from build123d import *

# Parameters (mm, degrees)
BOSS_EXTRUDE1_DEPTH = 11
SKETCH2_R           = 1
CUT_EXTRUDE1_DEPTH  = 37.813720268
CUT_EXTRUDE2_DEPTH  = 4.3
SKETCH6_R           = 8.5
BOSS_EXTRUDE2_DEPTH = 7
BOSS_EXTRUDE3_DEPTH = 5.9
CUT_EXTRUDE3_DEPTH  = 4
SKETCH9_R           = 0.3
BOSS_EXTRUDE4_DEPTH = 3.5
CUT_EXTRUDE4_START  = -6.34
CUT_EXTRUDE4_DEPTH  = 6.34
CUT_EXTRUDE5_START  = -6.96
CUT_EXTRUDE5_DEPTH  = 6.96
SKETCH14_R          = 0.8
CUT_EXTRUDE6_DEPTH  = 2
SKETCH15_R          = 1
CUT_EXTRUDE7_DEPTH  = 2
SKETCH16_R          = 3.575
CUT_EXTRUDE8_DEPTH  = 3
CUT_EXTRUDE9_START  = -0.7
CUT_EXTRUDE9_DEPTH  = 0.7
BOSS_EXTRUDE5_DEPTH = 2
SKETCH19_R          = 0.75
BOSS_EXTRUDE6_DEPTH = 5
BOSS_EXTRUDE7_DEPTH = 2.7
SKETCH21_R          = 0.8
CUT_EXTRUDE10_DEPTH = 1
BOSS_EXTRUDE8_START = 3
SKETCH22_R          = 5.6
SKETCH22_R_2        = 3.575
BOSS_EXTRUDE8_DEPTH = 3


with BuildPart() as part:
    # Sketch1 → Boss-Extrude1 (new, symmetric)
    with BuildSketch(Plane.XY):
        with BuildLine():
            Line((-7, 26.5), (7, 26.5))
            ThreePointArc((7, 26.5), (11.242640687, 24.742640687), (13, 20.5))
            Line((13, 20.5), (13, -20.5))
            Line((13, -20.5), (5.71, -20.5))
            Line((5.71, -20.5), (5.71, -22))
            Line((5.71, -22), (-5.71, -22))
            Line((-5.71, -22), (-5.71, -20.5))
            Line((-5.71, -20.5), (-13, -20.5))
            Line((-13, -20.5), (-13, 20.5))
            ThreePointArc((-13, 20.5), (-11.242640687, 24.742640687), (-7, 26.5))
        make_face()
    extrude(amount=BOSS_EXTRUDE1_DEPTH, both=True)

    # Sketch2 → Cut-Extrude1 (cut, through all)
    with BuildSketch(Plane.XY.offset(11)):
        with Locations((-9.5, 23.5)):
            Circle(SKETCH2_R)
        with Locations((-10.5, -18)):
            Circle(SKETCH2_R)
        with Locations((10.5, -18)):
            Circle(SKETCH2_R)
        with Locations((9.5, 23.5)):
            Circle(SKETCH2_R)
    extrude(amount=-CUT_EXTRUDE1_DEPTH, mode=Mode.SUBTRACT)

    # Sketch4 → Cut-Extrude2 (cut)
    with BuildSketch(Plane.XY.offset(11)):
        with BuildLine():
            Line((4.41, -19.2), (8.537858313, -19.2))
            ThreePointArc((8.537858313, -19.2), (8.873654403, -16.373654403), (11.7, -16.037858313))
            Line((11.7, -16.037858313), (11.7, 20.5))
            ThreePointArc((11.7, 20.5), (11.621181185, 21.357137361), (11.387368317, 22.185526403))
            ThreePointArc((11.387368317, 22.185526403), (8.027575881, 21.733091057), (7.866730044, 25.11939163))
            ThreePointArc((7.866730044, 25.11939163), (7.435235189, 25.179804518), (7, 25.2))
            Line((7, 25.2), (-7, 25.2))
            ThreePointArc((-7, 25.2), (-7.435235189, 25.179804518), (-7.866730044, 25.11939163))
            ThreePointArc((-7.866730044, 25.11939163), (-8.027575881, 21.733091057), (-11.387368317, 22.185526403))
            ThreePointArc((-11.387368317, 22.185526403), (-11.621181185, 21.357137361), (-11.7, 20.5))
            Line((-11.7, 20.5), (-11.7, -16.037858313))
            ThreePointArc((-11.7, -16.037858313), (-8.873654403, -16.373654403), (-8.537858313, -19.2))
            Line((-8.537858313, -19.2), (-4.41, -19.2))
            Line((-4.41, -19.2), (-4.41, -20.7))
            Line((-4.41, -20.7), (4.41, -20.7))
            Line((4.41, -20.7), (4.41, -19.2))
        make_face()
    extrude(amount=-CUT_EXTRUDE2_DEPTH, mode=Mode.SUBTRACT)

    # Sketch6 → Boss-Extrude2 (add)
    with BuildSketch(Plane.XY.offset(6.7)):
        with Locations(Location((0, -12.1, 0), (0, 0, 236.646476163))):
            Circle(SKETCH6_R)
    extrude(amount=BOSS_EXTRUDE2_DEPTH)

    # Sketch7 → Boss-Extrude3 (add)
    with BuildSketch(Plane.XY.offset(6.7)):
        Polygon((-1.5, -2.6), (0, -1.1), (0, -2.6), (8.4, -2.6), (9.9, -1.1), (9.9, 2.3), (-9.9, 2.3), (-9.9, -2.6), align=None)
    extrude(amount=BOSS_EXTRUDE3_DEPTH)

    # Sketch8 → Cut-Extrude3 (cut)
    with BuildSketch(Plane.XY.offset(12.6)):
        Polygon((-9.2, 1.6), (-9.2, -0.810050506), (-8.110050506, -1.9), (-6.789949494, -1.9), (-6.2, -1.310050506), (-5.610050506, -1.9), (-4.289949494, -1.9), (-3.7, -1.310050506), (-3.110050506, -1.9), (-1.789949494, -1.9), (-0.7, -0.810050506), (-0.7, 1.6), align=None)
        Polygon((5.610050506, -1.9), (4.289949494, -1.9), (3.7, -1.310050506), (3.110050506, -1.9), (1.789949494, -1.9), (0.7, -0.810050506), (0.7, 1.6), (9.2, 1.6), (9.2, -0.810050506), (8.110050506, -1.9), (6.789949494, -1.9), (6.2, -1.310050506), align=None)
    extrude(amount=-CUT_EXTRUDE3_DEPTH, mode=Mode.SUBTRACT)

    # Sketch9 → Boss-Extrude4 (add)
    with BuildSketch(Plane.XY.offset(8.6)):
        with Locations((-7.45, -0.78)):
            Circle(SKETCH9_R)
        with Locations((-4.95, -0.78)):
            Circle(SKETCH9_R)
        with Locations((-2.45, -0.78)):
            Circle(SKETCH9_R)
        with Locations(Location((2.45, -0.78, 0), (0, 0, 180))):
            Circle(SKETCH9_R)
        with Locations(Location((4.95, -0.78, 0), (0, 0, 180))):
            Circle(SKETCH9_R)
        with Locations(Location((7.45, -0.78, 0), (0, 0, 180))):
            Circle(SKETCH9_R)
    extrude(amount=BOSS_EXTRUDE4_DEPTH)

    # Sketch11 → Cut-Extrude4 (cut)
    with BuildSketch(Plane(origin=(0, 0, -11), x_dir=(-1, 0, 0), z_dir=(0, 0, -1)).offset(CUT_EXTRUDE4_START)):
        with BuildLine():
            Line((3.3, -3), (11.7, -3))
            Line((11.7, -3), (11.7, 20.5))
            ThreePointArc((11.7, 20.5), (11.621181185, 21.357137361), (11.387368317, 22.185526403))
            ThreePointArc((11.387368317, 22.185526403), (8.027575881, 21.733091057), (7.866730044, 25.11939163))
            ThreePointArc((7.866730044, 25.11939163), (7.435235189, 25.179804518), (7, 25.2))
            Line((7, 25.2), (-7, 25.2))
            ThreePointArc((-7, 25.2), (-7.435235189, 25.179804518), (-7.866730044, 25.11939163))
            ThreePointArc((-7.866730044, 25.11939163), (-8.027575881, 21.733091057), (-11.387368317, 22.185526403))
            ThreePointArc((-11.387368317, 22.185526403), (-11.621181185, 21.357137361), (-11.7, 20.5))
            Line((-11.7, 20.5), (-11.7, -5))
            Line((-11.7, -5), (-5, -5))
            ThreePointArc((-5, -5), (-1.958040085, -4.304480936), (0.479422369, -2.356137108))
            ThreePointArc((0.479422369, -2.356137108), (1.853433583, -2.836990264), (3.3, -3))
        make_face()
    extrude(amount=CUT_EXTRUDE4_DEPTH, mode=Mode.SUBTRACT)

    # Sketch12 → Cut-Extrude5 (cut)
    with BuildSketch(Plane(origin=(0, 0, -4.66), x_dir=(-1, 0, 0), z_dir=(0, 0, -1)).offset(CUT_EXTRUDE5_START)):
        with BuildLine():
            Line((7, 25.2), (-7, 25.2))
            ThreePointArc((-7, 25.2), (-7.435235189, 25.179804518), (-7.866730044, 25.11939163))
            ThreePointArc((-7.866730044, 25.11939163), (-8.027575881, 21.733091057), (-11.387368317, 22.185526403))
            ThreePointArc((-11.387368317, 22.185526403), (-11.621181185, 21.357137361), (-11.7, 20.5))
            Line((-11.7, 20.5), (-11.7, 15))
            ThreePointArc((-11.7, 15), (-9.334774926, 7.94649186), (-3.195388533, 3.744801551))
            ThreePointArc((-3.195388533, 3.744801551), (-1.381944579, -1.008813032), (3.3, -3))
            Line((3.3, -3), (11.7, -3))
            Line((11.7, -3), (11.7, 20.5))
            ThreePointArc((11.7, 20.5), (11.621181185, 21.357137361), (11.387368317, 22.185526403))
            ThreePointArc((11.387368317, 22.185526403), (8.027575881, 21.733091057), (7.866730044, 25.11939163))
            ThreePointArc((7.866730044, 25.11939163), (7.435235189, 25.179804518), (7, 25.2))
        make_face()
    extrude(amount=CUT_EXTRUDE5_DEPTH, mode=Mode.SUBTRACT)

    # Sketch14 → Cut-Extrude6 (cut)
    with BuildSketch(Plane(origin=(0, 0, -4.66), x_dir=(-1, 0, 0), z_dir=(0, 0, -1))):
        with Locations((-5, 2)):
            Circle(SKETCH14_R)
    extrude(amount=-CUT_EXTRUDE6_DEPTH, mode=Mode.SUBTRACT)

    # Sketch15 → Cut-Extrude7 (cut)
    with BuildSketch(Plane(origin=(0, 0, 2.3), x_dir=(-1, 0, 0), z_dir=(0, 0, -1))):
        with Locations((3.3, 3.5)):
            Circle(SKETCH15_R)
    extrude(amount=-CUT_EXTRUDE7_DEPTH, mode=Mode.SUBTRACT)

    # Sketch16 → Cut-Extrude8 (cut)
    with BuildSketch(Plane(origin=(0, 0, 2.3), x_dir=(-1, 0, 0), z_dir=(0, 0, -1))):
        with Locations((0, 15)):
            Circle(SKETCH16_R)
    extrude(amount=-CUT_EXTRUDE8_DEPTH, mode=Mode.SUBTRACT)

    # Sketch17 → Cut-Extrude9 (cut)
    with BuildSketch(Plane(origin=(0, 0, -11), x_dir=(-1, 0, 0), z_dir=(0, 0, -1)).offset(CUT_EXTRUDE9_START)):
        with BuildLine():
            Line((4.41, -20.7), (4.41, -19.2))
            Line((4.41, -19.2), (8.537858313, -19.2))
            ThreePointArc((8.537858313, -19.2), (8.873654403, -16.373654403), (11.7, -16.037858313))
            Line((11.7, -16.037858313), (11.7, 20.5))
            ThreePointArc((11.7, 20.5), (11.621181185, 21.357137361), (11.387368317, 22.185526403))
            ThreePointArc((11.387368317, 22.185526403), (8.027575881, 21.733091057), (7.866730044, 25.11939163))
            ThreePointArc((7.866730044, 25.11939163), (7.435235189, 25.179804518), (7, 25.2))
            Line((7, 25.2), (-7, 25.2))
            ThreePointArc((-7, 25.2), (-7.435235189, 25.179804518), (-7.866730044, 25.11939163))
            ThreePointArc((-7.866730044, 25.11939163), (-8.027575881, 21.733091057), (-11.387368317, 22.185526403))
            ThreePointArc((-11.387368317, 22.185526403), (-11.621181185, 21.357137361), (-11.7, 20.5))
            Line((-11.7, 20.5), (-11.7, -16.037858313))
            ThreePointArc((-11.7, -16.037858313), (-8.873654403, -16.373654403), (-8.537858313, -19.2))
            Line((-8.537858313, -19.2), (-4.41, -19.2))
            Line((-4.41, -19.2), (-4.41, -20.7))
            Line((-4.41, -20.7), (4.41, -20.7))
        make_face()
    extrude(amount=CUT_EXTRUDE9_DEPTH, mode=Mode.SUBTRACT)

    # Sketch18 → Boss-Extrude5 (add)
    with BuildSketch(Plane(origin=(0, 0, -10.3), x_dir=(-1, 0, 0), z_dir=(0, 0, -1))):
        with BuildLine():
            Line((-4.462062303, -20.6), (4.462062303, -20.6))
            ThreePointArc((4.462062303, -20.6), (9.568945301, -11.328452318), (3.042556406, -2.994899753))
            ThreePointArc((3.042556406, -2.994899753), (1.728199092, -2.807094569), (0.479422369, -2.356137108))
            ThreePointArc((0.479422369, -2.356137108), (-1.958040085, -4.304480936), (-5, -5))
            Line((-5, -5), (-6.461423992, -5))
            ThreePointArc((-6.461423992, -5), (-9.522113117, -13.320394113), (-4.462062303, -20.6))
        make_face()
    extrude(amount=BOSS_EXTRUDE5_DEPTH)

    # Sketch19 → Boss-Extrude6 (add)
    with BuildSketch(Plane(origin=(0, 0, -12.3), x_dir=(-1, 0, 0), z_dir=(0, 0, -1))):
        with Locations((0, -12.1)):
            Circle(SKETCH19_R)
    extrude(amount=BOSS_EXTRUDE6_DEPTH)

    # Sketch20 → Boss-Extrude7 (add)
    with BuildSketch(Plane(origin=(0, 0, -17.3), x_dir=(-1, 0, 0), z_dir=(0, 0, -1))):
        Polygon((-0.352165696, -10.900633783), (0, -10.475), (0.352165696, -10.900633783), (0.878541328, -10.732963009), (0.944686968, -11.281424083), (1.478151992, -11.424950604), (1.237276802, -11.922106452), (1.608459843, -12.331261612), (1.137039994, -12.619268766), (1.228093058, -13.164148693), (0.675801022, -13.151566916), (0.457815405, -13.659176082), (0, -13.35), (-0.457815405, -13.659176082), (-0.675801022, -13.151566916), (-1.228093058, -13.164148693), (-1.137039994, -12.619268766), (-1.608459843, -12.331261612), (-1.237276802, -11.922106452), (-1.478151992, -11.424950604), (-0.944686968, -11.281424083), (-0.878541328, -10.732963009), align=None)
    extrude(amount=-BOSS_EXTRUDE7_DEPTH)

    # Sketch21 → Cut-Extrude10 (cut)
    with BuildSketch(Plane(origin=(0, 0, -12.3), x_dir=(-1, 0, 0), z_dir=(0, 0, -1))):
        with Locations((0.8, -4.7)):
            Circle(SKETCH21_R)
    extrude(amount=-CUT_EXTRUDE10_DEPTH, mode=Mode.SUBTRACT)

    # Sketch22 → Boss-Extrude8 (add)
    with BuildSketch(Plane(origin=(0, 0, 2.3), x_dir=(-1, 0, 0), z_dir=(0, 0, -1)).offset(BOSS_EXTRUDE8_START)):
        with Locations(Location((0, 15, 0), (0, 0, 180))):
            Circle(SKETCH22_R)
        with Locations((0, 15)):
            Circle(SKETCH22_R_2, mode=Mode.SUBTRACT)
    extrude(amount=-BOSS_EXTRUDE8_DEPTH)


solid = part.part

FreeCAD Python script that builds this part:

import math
import FreeCAD as App
import Part
import Sketcher
Q = App.Units.Quantity


def add_polygon(sketch, points):
    """Adds a closed chain of lines whose ends are joined by coincident constraints."""
    first, n = sketch.GeometryCount, len(points)
    for a, b in zip(points, points[1:] + points[:1]):
        sketch.addGeometry(Part.LineSegment(App.Vector(*a, 0), App.Vector(*b, 0)), False)
    for i in range(n):
        sketch.addConstraint(Sketcher.Constraint("Coincident", first + i, 2, first + (i + 1) % n, 1))

doc = App.newDocument("Part")
params = doc.addObject("Spreadsheet::Sheet", "Params")
for row, (alias, value) in enumerate([
    ("sketch1_radius", "6 mm"),
    ("sketch1_width", "14 mm"),
    ("sketch1_height", "41 mm"),
    ("sketch1_height2", "1.5 mm"),
    ("sketch1_width2", "7.29 mm"),
    ("pad1_length", "22 mm"),
    ("sketch2_diameter", "2 mm"),
    ("sketch3_radius", "2.3 mm"),
    ("sketch3_radius2", "4.7 mm"),
    ("sketch3_width", "14 mm"),
    ("sketch3_height", "1.5 mm"),
    ("sketch3_width2", "8.82 mm"),
    ("pocket2_length", "4.3 mm"),
    ("sketch4_diameter", "17 mm"),
    ("pad2_length", "7 mm"),
    ("sketch5_width", "8.4 mm"),
    ("sketch5_width2", "19.8 mm"),
    ("sketch5_height", "3.4 mm"),
    ("pad3_length", "5.9 mm"),
    ("sketch6_width", "8.5 mm"),
    ("pocket3_length", "4 mm"),
    ("sketch7_diameter", "0.6 mm"),
    ("pad4_length", "3.5 mm"),
    ("sketch8_radius", "7 mm"),
    ("sketch8_radius2", "4.7 mm"),
    ("sketch8_radius3", "2.3 mm"),
    ("sketch8_radius4", "6.5 mm"),
    ("sketch8_width", "14 mm"),
    ("pocket4_length", "6.34 mm"),
    ("sketch9_radius", "4.7 mm"),
    ("sketch9_radius2", "2.3 mm"),
    ("sketch9_radius3", "11.7 mm"),
    ("sketch9_radius4", "6.5 mm"),
    ("sketch9_width", "8.4 mm"),
    ("pocket5_length", "6.96 mm"),
    ("sketch10_diameter", "1.6 mm"),
    ("pocket6_length", "2 mm"),
    ("sketch11_diameter", "2 mm"),
    ("pocket7_length", "2 mm"),
    ("sketch12_diameter", "7.15 mm"),
    ("pocket8_length", "3 mm"),
    ("sketch13_radius", "2.3 mm"),
    ("sketch13_radius2", "4.7 mm"),
    ("sketch13_width", "14 mm"),
    ("sketch13_height", "1.5 mm"),
    ("sketch13_width2", "8.82 mm"),
    ("pocket9_length", "0.7 mm"),
    ("sketch14_radius", "7 mm"),
    ("sketch14_radius2", "9.6 mm"),
    ("sketch14_radius3", "6.5 mm"),
    ("pad5_length", "2 mm"),
    ("sketch15_diameter", "1.5 mm"),
    ("pad6_length", "5 mm"),
    ("pad7_length", "2.7 mm"),
    ("sketch17_diameter", "1.6 mm"),
    ("pocket10_length", "1 mm"),
    ("sketch18_diameter", "11.2 mm"),
    ("sketch18_diameter2", "7.15 mm"),
    ("pad8_length", "3 mm"),
], start=1):
    params.set(f"A{row}", alias)
    params.set(f"B{row}", "=" + value)
    params.setAlias(f"B{row}", alias)

body = doc.addObject("PartDesign::Body", "Body")

# Sketch on XY plane
sketch1 = body.newObject("Sketcher::SketchObject", "Sketch")
sketch1.AttachmentSupport = (doc.getObject("XY_Plane"), [""])
sketch1.MapMode = "FlatFace"
sketch1.addGeometry([
    Part.LineSegment(App.Vector(7, 26.5, 0), App.Vector(-7, 26.5, 0)),  # 0
    Part.ArcOfCircle(Part.Circle(App.Vector(-7, 20.5, 0), App.Vector(0, 0, 1), 6), math.radians(90), math.radians(180)),  # 1
    Part.LineSegment(App.Vector(-13, 20.5, 0), App.Vector(-13, -20.5, 0)),  # 2
    Part.LineSegment(App.Vector(-13, -20.5, 0), App.Vector(-5.7, -20.5, 0)),  # 3
    Part.LineSegment(App.Vector(-5.7, -20.5, 0), App.Vector(-5.7, -22, 0)),  # 4
    Part.LineSegment(App.Vector(-5.7, -22, 0), App.Vector(5.7, -22, 0)),  # 5
    Part.LineSegment(App.Vector(5.7, -22, 0), App.Vector(5.7, -20.5, 0)),  # 6
    Part.LineSegment(App.Vector(5.7, -20.5, 0), App.Vector(13, -20.5, 0)),  # 7
    Part.LineSegment(App.Vector(13, -20.5, 0), App.Vector(13, 20.5, 0)),  # 8
    Part.ArcOfCircle(Part.Circle(App.Vector(7, 20.5, 0), App.Vector(0, 0, 1), 6), math.radians(0), math.radians(90)),  # 9
], False)
sketch1.addConstraint([
    Sketcher.Constraint("Tangent", 0, 2, 1, 1),
    Sketcher.Constraint("Tangent", 1, 2, 2, 1),
    Sketcher.Constraint("Coincident", 2, 2, 3, 1),
    Sketcher.Constraint("Coincident", 3, 2, 4, 1),
    Sketcher.Constraint("Coincident", 4, 2, 5, 1),
    Sketcher.Constraint("Coincident", 5, 2, 6, 1),
    Sketcher.Constraint("Coincident", 6, 2, 7, 1),
    Sketcher.Constraint("Coincident", 7, 2, 8, 1),
    Sketcher.Constraint("Tangent", 8, 2, 9, 1),
    Sketcher.Constraint("Tangent", 9, 2, 0, 1),
    Sketcher.Constraint("Horizontal", 0),
    Sketcher.Constraint("Vertical", 2),
    Sketcher.Constraint("Horizontal", 3),
    Sketcher.Constraint("Vertical", 4),
    Sketcher.Constraint("Horizontal", 5),
    Sketcher.Constraint("Vertical", 6),
    Sketcher.Constraint("Horizontal", 7),
    Sketcher.Constraint("Vertical", 8),
    Sketcher.Constraint("Equal", 1, 9),
    Sketcher.Constraint("Symmetric", 1, 2, 7, 2, -1, 1),
    Sketcher.Constraint("Symmetric", 3, 2, 6, 2, -2),
    Sketcher.Constraint("Radius", 1, 6.0),
    Sketcher.Constraint("DistanceX", 0, 2, 0, 1, 14.0),
    Sketcher.Constraint("DistanceY", 2, 2, 2, 1, 41.0),
    Sketcher.Constraint("DistanceY", 4, 2, 4, 1, 1.5),
    Sketcher.Constraint("DistanceX", 3, 1, 3, 2, 7.29),
])
sketch1.setExpression("Constraints[21]", "Params.sketch1_radius")
sketch1.setExpression("Constraints[22]", "Params.sketch1_width")
sketch1.setExpression("Constraints[23]", "Params.sketch1_height")
sketch1.setExpression("Constraints[24]", "Params.sketch1_height2")
sketch1.setExpression("Constraints[25]", "Params.sketch1_width2")
pad1 = body.newObject("PartDesign::Pad", "Pad")
pad1.Profile = sketch1
pad1.setExpression("Length", "Params.pad1_length")
pad1.Midplane = True

# Sketch on XY plane
sketch2 = body.newObject("Sketcher::SketchObject", "Sketch001")
sketch2.AttachmentSupport = (doc.getObject("XY_Plane"), [""])
sketch2.MapMode = "FlatFace"
sketch2.AttachmentOffset = App.Placement(App.Vector(0, 0, 11), App.Rotation())
sketch2.addGeometry([
    Part.Circle(App.Vector(-9.5, 23.5, 0), App.Vector(0, 0, 1), 1),
    Part.Circle(App.Vector(-10.5, -18, 0), App.Vector(0, 0, 1), 1),
    Part.Circle(App.Vector(10.5, -18, 0), App.Vector(0, 0, 1), 1),
    Part.Circle(App.Vector(9.5, 23.5, 0), App.Vector(0, 0, 1), 1),
], False)
sketch2.addConstraint([
    Sketcher.Constraint("Equal", 0, 1),
    Sketcher.Constraint("Equal", 1, 2),
    Sketcher.Constraint("Equal", 2, 3),
    Sketcher.Constraint("Symmetric", 1, 3, 2, 3, -2),
    Sketcher.Constraint("Symmetric", 0, 3, 3, 3, -2),
    Sketcher.Constraint("Diameter", 0, 2.0),
    Sketcher.Constraint("DistanceY", 1, 3, -1, 1, 18.0),
    Sketcher.Constraint("DistanceX", 1, 3, 0, 3, 1.0),
    Sketcher.Constraint("DistanceX", 1, 3, 2, 3, 21.0),
    Sketcher.Constraint("DistanceY", -1, 1, 0, 3, 23.5),
])
sketch2.setExpression("Constraints[5]", "Params.sketch2_diameter")
pocket1 = body.newObject("PartDesign::Pocket", "Pocket")
pocket1.Profile = sketch2
pocket1.Type = "ThroughAll"

# Sketch on XY plane
sketch3 = body.newObject("Sketcher::SketchObject", "Sketch002")
sketch3.AttachmentSupport = (doc.getObject("XY_Plane"), [""])
sketch3.MapMode = "FlatFace"
sketch3.AttachmentOffset = App.Placement(App.Vector(0, 0, 11), App.Rotation())
sketch3.addGeometry([
    Part.LineSegment(App.Vector(4.4, -19.2, 0), App.Vector(8.5, -19.2, 0)),  # 0
    Part.ArcOfCircle(Part.Circle(App.Vector(10.5, -18, 0), App.Vector(0, 0, 1), 2.3), math.radians(59), math.radians(211)),  # 1
    Part.LineSegment(App.Vector(11.7, -16, 0), App.Vector(11.7, 20.5, 0)),  # 2
    Part.ArcOfCircle(Part.Circle(App.Vector(7, 20.5, 0), App.Vector(0, 0, 1), 4.7), math.radians(0), math.radians(21)),  # 3
    Part.ArcOfCircle(Part.Circle(App.Vector(9.5, 23.5, 0), App.Vector(0, 0, 1), 2.3), math.radians(135), math.radians(325)),  # 4
    Part.ArcOfCircle(Part.Circle(App.Vector(7, 20.5, 0), App.Vector(0, 0, 1), 4.7), math.radians(79.37), math.radians(90)),  # 5
    Part.LineSegment(App.Vector(7, 25.2, 0), App.Vector(-7, 25.2, 0)),  # 6
    Part.ArcOfCircle(Part.Circle(App.Vector(-7, 20.5, 0), App.Vector(0, 0, 1), 4.7), math.radians(90), math.radians(100.63)),  # 7
    Part.ArcOfCircle(Part.Circle(App.Vector(-9.5, 23.5, 0), App.Vector(0, 0, 1), 2.3), math.radians(-145), math.radians(45)),  # 8
    Part.ArcOfCircle(Part.Circle(App.Vector(-7, 20.5, 0), App.Vector(0, 0, 1), 4.7), math.radians(159), math.radians(180)),  # 9
    Part.LineSegment(App.Vector(-11.7, 20.5, 0), App.Vector(-11.7, -16, 0)),  # 10
    Part.ArcOfCircle(Part.Circle(App.Vector(-10.5, -18, 0), App.Vector(0, 0, 1), 2.3), math.radians(-31), math.radians(121)),  # 11
    Part.LineSegment(App.Vector(-8.5, -19.2, 0), App.Vector(-4.4, -19.2, 0)),  # 12
    Part.LineSegment(App.Vector(-4.4, -19.2, 0), App.Vector(-4.4, -20.7, 0)),  # 13
    Part.LineSegment(App.Vector(-4.4, -20.7, 0), App.Vector(4.4, -20.7, 0)),  # 14
    Part.LineSegment(App.Vector(4.4, -20.7, 0), App.Vector(4.4, -19.2, 0)),  # 15
], False)
sketch3.addConstraint([
    Sketcher.Constraint("Coincident", 0, 2, 1, 2),
    Sketcher.Constraint("Coincident", 1, 1, 2, 1),
    Sketcher.Constraint("Tangent", 2, 2, 3, 1),
    Sketcher.Constraint("Coincident", 3, 2, 4, 2),
    Sketcher.Constraint("Coincident", 4, 1, 5, 1),
    Sketcher.Constraint("Tangent", 5, 2, 6, 1),
    Sketcher.Constraint("Tangent", 6, 2, 7, 1),
    Sketcher.Constraint("Coincident", 7, 2, 8, 2),
    Sketcher.Constraint("Coincident", 8, 1, 9, 1),
    Sketcher.Constraint("Tangent", 9, 2, 10, 1),
    Sketcher.Constraint("Coincident", 10, 2, 11, 2),
    Sketcher.Constraint("Coincident", 11, 1, 12, 1),
    Sketcher.Constraint("Coincident", 12, 2, 13, 1),
    Sketcher.Constraint("Coincident", 13, 2, 14, 1),
    Sketcher.Constraint("Coincident", 14, 2, 15, 1),
    Sketcher.Constraint("Coincident", 15, 2, 0, 1),
    Sketcher.Constraint("Horizontal", 0),
    Sketcher.Constraint("Vertical", 2),
    Sketcher.Constraint("Horizontal", 6),
    Sketcher.Constraint("Vertical", 10),
    Sketcher.Constraint("Horizontal", 12),
    Sketcher.Constraint("Vertical", 13),
    Sketcher.Constraint("Horizontal", 14),
    Sketcher.Constraint("Vertical", 15),
    Sketcher.Constraint("Coincident", 5, 3, 3, 3),
    Sketcher.Constraint("Coincident", 9, 3, 7, 3),
    Sketcher.Constraint("Equal", 1, 4),
    Sketcher.Constraint("Equal", 3, 5),
    Sketcher.Constraint("Equal", 5, 7),
    Sketcher.Constraint("Equal", 4, 8),
    Sketcher.Constraint("Equal", 7, 9),
    Sketcher.Constraint("Equal", 8, 11),
    Sketcher.Constraint("Symmetric", 4, 3, 8, 3, -2),
    Sketcher.Constraint("Symmetric", 1, 3, 11, 3, -2),
    Sketcher.Constraint("Symmetric", 12, 2, 15, 2, -2),
    Sketcher.Constraint("Horizontal", 4, 1, 7, 2),
    Sketcher.Constraint("Radius", 1, 2.3),
    Sketcher.Constraint("Radius", 3, 4.7),
    Sketcher.Constraint("DistanceX", 6, 2, 6, 1, 14.0),
    Sketcher.Constraint("DistanceY", 13, 2, 13, 1, 1.5),
    Sketcher.Constraint("DistanceY", 1, 3, -1, 1, 18.0),
    Sketcher.Constraint("DistanceY", 3, 3, 4, 3, 3.0),
    Sketcher.Constraint("DistanceX", 4, 3, 1, 3, 1.0),
    Sketcher.Constraint("DistanceX", 8, 3, 4, 3, 19.0),
    Sketcher.Constraint("DistanceX", 14, 1, 14, 2, 8.82),
    Sketcher.Constraint("DistanceY", -1, 1, 3, 3, 20.5),
    Sketcher.Constraint("DistanceY", 0, 2, -1, 1, 19.2),
])
sketch3.setExpression("Constraints[36]", "Params.sketch3_radius")
sketch3.setExpression("Constraints[37]", "Params.sketch3_radius2")
sketch3.setExpression("Constraints[38]", "Params.sketch3_width")
sketch3.setExpression("Constraints[39]", "Params.sketch3_height")
sketch3.setExpression("Constraints[44]", "Params.sketch3_width2")
pocket2 = body.newObject("PartDesign::Pocket", "Pocket001")
pocket2.Profile = sketch3
pocket2.setExpression("Length", "Params.pocket2_length")

# Sketch on XY plane
sketch4 = body.newObject("Sketcher::SketchObject", "Sketch003")
sketch4.AttachmentSupport = (doc.getObject("XY_Plane"), [""])
sketch4.MapMode = "FlatFace"
sketch4.AttachmentOffset = App.Placement(App.Vector(0, 0, 6.7), App.Rotation())
sketch4.addGeometry(Part.Circle(App.Vector(0, -12, 0), App.Vector(0, 0, 1), 8), False)
sketch4.addConstraint([
    Sketcher.Constraint("PointOnObject", 0, 3, -2),
    Sketcher.Constraint("Diameter", 0, 17.0),
    Sketcher.Constraint("DistanceY", 0, 3, -1, 1, 12.1),
])
sketch4.setExpression("Constraints[1]", "Params.sketch4_diameter")
pad2 = body.newObject("PartDesign::Pad", "Pad001")
pad2.Profile = sketch4
pad2.setExpression("Length", "Params.pad2_length")

# Sketch on XY plane
sketch5 = body.newObject("Sketcher::SketchObject", "Sketch004")
sketch5.AttachmentSupport = (doc.getObject("XY_Plane"), [""])
sketch5.MapMode = "FlatFace"
sketch5.AttachmentOffset = App.Placement(App.Vector(0, 0, 6.7), App.Rotation())
add_polygon(sketch5, [(-1.5, -2.6), (0, -1.1), (0, -2.6), (8.4, -2.6), (9.9, -1.1), (9.9, 2.3), (-9.9, 2.3), (-9.9, -2.6)])  # lines 0-7
sketch5.addConstraint([
    Sketcher.Constraint("Vertical", 1),
    Sketcher.Constraint("Horizontal", 2),
    Sketcher.Constraint("Vertical", 4),
    Sketcher.Constraint("Horizontal", 5),
    Sketcher.Constraint("Vertical", 6),
    Sketcher.Constraint("Horizontal", 7),
    Sketcher.Constraint("PointOnObject", 0, 2, -2),
    Sketcher.Constraint("Parallel", 0, 3),
    Sketcher.Constraint("Horizontal", 0, 2, 3, 2),
    Sketcher.Constraint("Horizontal", 2, 2, 6, 2),
    Sketcher.Constraint("Equal", 2, 7),
    Sketcher.Constraint("Angle", 0, Q("45 deg")),
    Sketcher.Constraint("DistanceX", 2, 1, 2, 2, 8.4),
    Sketcher.Constraint("DistanceX", 5, 2, 5, 1, 19.8),
    Sketcher.Constraint("DistanceY", 4, 1, 4, 2, 3.4),
    Sketcher.Constraint("DistanceY", 0, 2, -1, 1, 1.1),
])
sketch5.setExpression("Constraints[20]", "Params.sketch5_width")
sketch5.setExpression("Constraints[21]", "Params.sketch5_width2")
sketch5.setExpression("Constraints[22]", "Params.sketch5_height")
pad3 = body.newObject("PartDesign::Pad", "Pad002")
pad3.Profile = sketch5
pad3.setExpression("Length", "Params.pad3_length")

# Sketch on XY plane
sketch6 = body.newObject("Sketcher::SketchObject", "Sketch005")
sketch6.AttachmentSupport = (doc.getObject("XY_Plane"), [""])
sketch6.MapMode = "FlatFace"
sketch6.AttachmentOffset = App.Placement(App.Vector(0, 0, 12.6), App.Rotation())
add_polygon(sketch6, [(-9.2, 1.6), (-9.2, -0.8), (-8.1, -1.9), (-6.8, -1.9), (-6.2, -1.3), (-5.6, -1.9), (-4.3, -1.9), (-3.7, -1.3), (-3.1, -1.9), (-1.8, -1.9), (-0.7, -0.8), (-0.7, 1.6)])  # lines 0-11
add_polygon(sketch6, [(4.3, -1.9), (5.6, -1.9), (6.2, -1.3), (6.8, -1.9), (8.1, -1.9), (9.2, -0.8), (9.2, 1.6), (0.7, 1.6), (0.7, -0.8), (1.8, -1.9), (3.1, -1.9), (3.7, -1.3)])  # lines 12-23
sketch6.addConstraint([
    Sketcher.Constraint("Vertical", 0),
    Sketcher.Constraint("Horizontal", 2),
    Sketcher.Constraint("Horizontal", 5),
    Sketcher.Constraint("Horizontal", 8),
    Sketcher.Constraint("Vertical", 10),
    Sketcher.Constraint("Horizontal", 11),
    Sketcher.Constraint("Horizontal", 12),
    Sketcher.Constraint("Horizontal", 15),
    Sketcher.Constraint("Vertical", 17),
    Sketcher.Constraint("Horizontal", 18),
    Sketcher.Constraint("Vertical", 19),
    Sketcher.Constraint("Horizontal", 21),
    Sketcher.Constraint("Symmetric", 4, 2, 12, 2, -2),
    Sketcher.Constraint("Symmetric", 3, 2, 13, 2, -2),
    Sketcher.Constraint("Symmetric", 2, 2, 14, 2, -2),
    Sketcher.Constraint("Symmetric", 0, 2, 16, 2, -2),
    Sketcher.Constraint("Symmetric", 10, 2, 18, 2, -2),
    Sketcher.Constraint("Symmetric", 8, 2, 20, 2, -2),
    Sketcher.Constraint("Symmetric", 6, 2, 22, 2, -2),
    Sketcher.Constraint("Perpendicular", 1, 3),
    Sketcher.Constraint("Perpendicular", 3, 4),
    Sketcher.Constraint("Perpendicular", 4, 6),
    Sketcher.Constraint("Perpendicular", 6, 7),
    Sketcher.Constraint("Perpendicular", 7, 9),
    Sketcher.Constraint("Parallel", 9, 13),
    Sketcher.Constraint("Perpendicular", 14, 16),
    Sketcher.Constraint("Perpendicular", 16, 20),
    Sketcher.Constraint("Perpendicular", 20, 22),
    Sketcher.Constraint("Perpendicular", 22, 23),
    Sketcher.Constraint("Horizontal", 2, 2, 4, 2),
    Sketcher.Constraint("Horizontal", 3, 2, 6, 2),
    Sketcher.Constraint("Horizontal", 5, 2, 7, 2),
    Sketcher.Constraint("Horizontal", 0, 2, 9, 2),
    Sketcher.Constraint("Equal", 2, 5),
    Sketcher.Constraint("Equal", 5, 8),
    Sketcher.Constraint("DistanceX", 11, 2, 11, 1, 8.5),
    Sketcher.Constraint("DistanceX", 0, 2, 3, 2, 3.0),
    Sketcher.Constraint("DistanceX", 0, 2, -1, 1, 9.2),
    Sketcher.Constraint("DistanceY", 1, 2, -1, 1, 1.9),
    Sketcher.Constraint("DistanceY", -1, 1, 10, 2, 1.6),
    Sketcher.Constraint("DistanceX", 2, 1, 2, 2, 1.320101),
])
sketch6.setExpression("Constraints[59]", "Params.sketch6_width")
pocket3 = body.newObject("PartDesign::Pocket", "Pocket002")
pocket3.Profile = sketch6
pocket3.setExpression("Length", "Params.pocket3_length")

# Sketch on XY plane
sketch7 = body.newObject("Sketcher::SketchObject", "Sketch006")
sketch7.AttachmentSupport = (doc.getObject("XY_Plane"), [""])
sketch7.MapMode = "FlatFace"
sketch7.AttachmentOffset = App.Placement(App.Vector(0, 0, 8.6), App.Rotation())
sketch7.addGeometry([
    Part.Circle(App.Vector(-7.45, -0.78, 0), App.Vector(0, 0, 1), 0.3),  # 0
    Part.Circle(App.Vector(-4.95, -0.78, 0), App.Vector(0, 0, 1), 0.3),  # 1
    Part.Circle(App.Vector(-2.45, -0.78, 0), App.Vector(0, 0, 1), 0.3),  # 2
    Part.Circle(App.Vector(2.45, -0.78, 0), App.Vector(0, 0, 1), 0.3),  # 3
    Part.Circle(App.Vector(4.95, -0.78, 0), App.Vector(0, 0, 1), 0.3),  # 4
    Part.Circle(App.Vector(7.45, -0.78, 0), App.Vector(0, 0, 1), 0.3),  # 5
], False)
sketch7.addConstraint([
    Sketcher.Constraint("Equal", 0, 1),
    Sketcher.Constraint("Equal", 1, 2),
    Sketcher.Constraint("Equal", 2, 3),
    Sketcher.Constraint("Equal", 3, 4),
    Sketcher.Constraint("Equal", 4, 5),
    Sketcher.Constraint("Symmetric", 2, 3, 3, 3, -2),
    Sketcher.Constraint("Symmetric", 1, 3, 4, 3, -2),
    Sketcher.Constraint("Symmetric", 0, 3, 5, 3, -2),
    Sketcher.Constraint("Horizontal", 0, 3, 1, 3),
    Sketcher.Constraint("Horizontal", 1, 3, 2, 3),
    Sketcher.Constraint("Diameter", 0, 0.6),
    Sketcher.Constraint("DistanceX", 0, 3, 2, 3, 5.0),
    Sketcher.Constraint("DistanceX", 0, 3, 1, 3, 2.5),
    Sketcher.Constraint("DistanceX", 2, 3, 3, 3, 4.9),
    Sketcher.Constraint("DistanceY", 0, 3, -1, 1, 0.78),
])
sketch7.setExpression("Constraints[10]", "Params.sketch7_diameter")
pad4 = body.newObject("PartDesign::Pad", "Pad003")
pad4.Profile = sketch7
pad4.setExpression("Length", "Params.pad4_length")

# Sketch on XY plane
sketch8 = body.newObject("Sketcher::SketchObject", "Sketch007")
sketch8.AttachmentSupport = (doc.getObject("XY_Plane"), [""])
sketch8.MapMode = "FlatFace"
sketch8.AttachmentOffset = App.Placement(App.Vector(0, 0, -4.66), App.Rotation())
sketch8.addGeometry([
    Part.LineSegment(App.Vector(-3.3, -3, 0), App.Vector(-11.7, -3, 0)),  # 0
    Part.LineSegment(App.Vector(-11.7, -3, 0), App.Vector(-11.7, 20.5, 0)),  # 1
    Part.ArcOfCircle(Part.Circle(App.Vector(-7, 20.5, 0), App.Vector(0, 0, 1), 4.7), math.radians(159), math.radians(180)),  # 2
    Part.ArcOfCircle(Part.Circle(App.Vector(-9.5, 23.5, 0), App.Vector(0, 0, 1), 2.3), math.radians(-145), math.radians(45)),  # 3
    Part.ArcOfCircle(Part.Circle(App.Vector(-7, 20.5, 0), App.Vector(0, 0, 1), 4.7), math.radians(90), math.radians(100.63)),  # 4
    Part.LineSegment(App.Vector(-7, 25.2, 0), App.Vector(7, 25.2, 0)),  # 5
    Part.ArcOfCircle(Part.Circle(App.Vector(7, 20.5, 0), App.Vector(0, 0, 1), 4.7), math.radians(79.37), math.radians(90)),  # 6
    Part.ArcOfCircle(Part.Circle(App.Vector(9.5, 23.5, 0), App.Vector(0, 0, 1), 2.3), math.radians(135), math.radians(325)),  # 7
    Part.ArcOfCircle(Part.Circle(App.Vector(7, 20.5, 0), App.Vector(0, 0, 1), 4.7), math.radians(0), math.radians(21)),  # 8
    Part.LineSegment(App.Vector(11.7, 20.5, 0), App.Vector(11.7, -5, 0)),  # 9
    Part.LineSegment(App.Vector(11.7, -5, 0), App.Vector(5, -5, 0)),  # 10
    Part.ArcOfCircle(Part.Circle(App.Vector(5, 2, 0), App.Vector(0, 0, 1), 7), math.radians(-142), math.radians(-90)),  # 11
    Part.ArcOfCircle(Part.Circle(App.Vector(-3.3, 3.5, 0), App.Vector(0, 0, 1), 6.5), math.radians(-90), math.radians(-64)),  # 12
], False)
sketch8.addConstraint([
    Sketcher.Constraint("Coincident", 0, 2, 1, 1),
    Sketcher.Constraint("Tangent", 1, 2, 2, 2),
    Sketcher.Constraint("Coincident", 2, 1, 3, 1),
    Sketcher.Constraint("Coincident", 3, 2, 4, 2),
    Sketcher.Constraint("Tangent", 4, 1, 5, 1),
    Sketcher.Constraint("Tangent", 5, 2, 6, 2),
    Sketcher.Constraint("Coincident", 6, 1, 7, 1),
    Sketcher.Constraint("Coincident", 7, 2, 8, 2),
    Sketcher.Constraint("Tangent", 8, 1, 9, 1),
    Sketcher.Constraint("Coincident", 9, 2, 10, 1),
    Sketcher.Constraint("Tangent", 10, 2, 11, 2),
    Sketcher.Constraint("Coincident", 11, 1, 12, 2),
    Sketcher.Constraint("Tangent", 12, 1, 0, 1),
    Sketcher.Constraint("Horizontal", 0),
    Sketcher.Constraint("Vertical", 1),
    Sketcher.Constraint("Horizontal", 5),
    Sketcher.Constraint("Vertical", 9),
    Sketcher.Constraint("Horizontal", 10),
    Sketcher.Constraint("Coincident", 4, 3, 2, 3),
    Sketcher.Constraint("Coincident", 8, 3, 6, 3),
    Sketcher.Constraint("Equal", 2, 4),
    Sketcher.Constraint("Equal", 4, 6),
    Sketcher.Constraint("Equal", 3, 7),
    Sketcher.Constraint("Equal", 6, 8),
    Sketcher.Constraint("Symmetric", 3, 3, 7, 3, -2),
    Sketcher.Constraint("Horizontal", 3, 2, 6, 1),
    Sketcher.Constraint("Radius", 11, 7.0),
    Sketcher.Constraint("Radius", 2, 4.7),
    Sketcher.Constraint("Radius", 3, 2.3),
    Sketcher.Constraint("Radius", 12, 6.5),
    Sketcher.Constraint("DistanceX", 5, 1, 5, 2, 14.0),
    Sketcher.Constraint("DistanceX", 0, 2, 0, 1, 8.4),
    Sketcher.Constraint("DistanceX", 10, 2, 10, 1, 6.7),
    Sketcher.Constraint("DistanceY", 1, 1, 1, 2, 23.5),
    Sketcher.Constraint("DistanceY", 9, 2, 9, 1, 25.5),
    Sketcher.Constraint("DistanceY", -1, 1, 11, 3, 2.0),
    Sketcher.Constraint("DistanceY", 2, 3, 3, 3, 3.0),
    Sketcher.Constraint("DistanceX", 3, 3, 7, 3, 19.0),
])
sketch8.setExpression("Constraints[26]", "Params.sketch8_radius")
sketch8.setExpression("Constraints[27]", "Params.sketch8_radius2")
sketch8.setExpression("Constraints[28]", "Params.sketch8_radius3")
sketch8.setExpression("Constraints[29]", "Params.sketch8_radius4")
sketch8.setExpression("Constraints[30]", "Params.sketch8_width")
pocket4 = body.newObject("PartDesign::Pocket", "Pocket003")
pocket4.Profile = sketch8
pocket4.setExpression("Length", "Params.pocket4_length")

# Sketch on XY plane
sketch9 = body.newObject("Sketcher::SketchObject", "Sketch008")
sketch9.AttachmentSupport = (doc.getObject("XY_Plane"), [""])
sketch9.MapMode = "FlatFace"
sketch9.AttachmentOffset = App.Placement(App.Vector(0, 0, 2.3), App.Rotation())
sketch9.addGeometry([
    Part.LineSegment(App.Vector(-7, 25.2, 0), App.Vector(7, 25.2, 0)),  # 0
    Part.ArcOfCircle(Part.Circle(App.Vector(7, 20.5, 0), App.Vector(0, 0, 1), 4.7), math.radians(79.37), math.radians(90)),  # 1
    Part.ArcOfCircle(Part.Circle(App.Vector(9.5, 23.5, 0), App.Vector(0, 0, 1), 2.3), math.radians(135), math.radians(325)),  # 2
    Part.ArcOfCircle(Part.Circle(App.Vector(7, 20.5, 0), App.Vector(0, 0, 1), 4.7), math.radians(0), math.radians(21)),  # 3
    Part.LineSegment(App.Vector(11.7, 20.5, 0), App.Vector(11.7, 15, 0)),  # 4
    Part.ArcOfCircle(Part.Circle(App.Vector(0, 15, 0), App.Vector(0, 0, 1), 11.7), math.radians(-74), math.radians(0)),  # 5
    Part.ArcOfCircle(Part.Circle(App.Vector(-3.3, 3.5, 0), App.Vector(0, 0, 1), 6.5), math.radians(-90), math.radians(2)),  # 6
    Part.LineSegment(App.Vector(-3.3, -3, 0), App.Vector(-11.7, -3, 0)),  # 7
    Part.LineSegment(App.Vector(-11.7, -3, 0), App.Vector(-11.7, 20.5, 0)),  # 8
    Part.ArcOfCircle(Part.Circle(App.Vector(-7, 20.5, 0), App.Vector(0, 0, 1), 4.7), math.radians(159), math.radians(180)),  # 9
    Part.ArcOfCircle(Part.Circle(App.Vector(-9.5, 23.5, 0), App.Vector(0, 0, 1), 2.3), math.radians(-145), math.radians(45)),  # 10
    Part.ArcOfCircle(Part.Circle(App.Vector(-7, 20.5, 0), App.Vector(0, 0, 1), 4.7), math.radians(90), math.radians(100.63)),  # 11
], False)
sketch9.addConstraint([
    Sketcher.Constraint("Tangent", 0, 2, 1, 2),
    Sketcher.Constraint("Coincident", 1, 1, 2, 1),
    Sketcher.Constraint("Coincident", 2, 2, 3, 2),
    Sketcher.Constraint("Tangent", 3, 1, 4, 1),
    Sketcher.Constraint("Tangent", 4, 2, 5, 2),
    Sketcher.Constraint("Coincident", 5, 1, 6, 2),
    Sketcher.Constraint("Tangent", 6, 1, 7, 1),
    Sketcher.Constraint("Coincident", 7, 2, 8, 1),
    Sketcher.Constraint("Tangent", 8, 2, 9, 2),
    Sketcher.Constraint("Coincident", 9, 1, 10, 1),
    Sketcher.Constraint("Coincident", 10, 2, 11, 2),
    Sketcher.Constraint("Tangent", 11, 1, 0, 1),
    Sketcher.Constraint("Horizontal", 0),
    Sketcher.Constraint("Vertical", 4),
    Sketcher.Constraint("Horizontal", 7),
    Sketcher.Constraint("Vertical", 8),
    Sketcher.Constraint("Coincident", 3, 3, 1, 3),
    Sketcher.Constraint("Coincident", 11, 3, 9, 3),
    Sketcher.Constraint("Equal", 1, 3),
    Sketcher.Constraint("Equal", 3, 9),
    Sketcher.Constraint("Equal", 2, 10),
    Sketcher.Constraint("Equal", 9, 11),
    Sketcher.Constraint("Symmetric", 2, 3, 10, 3, -2),
    Sketcher.Constraint("PointOnObject", 5, 3, -2),
    Sketcher.Constraint("Horizontal", 2, 2, 9, 1),
    Sketcher.Constraint("Radius", 1, 4.7),
    Sketcher.Constraint("Radius", 2, 2.3),
    Sketcher.Constraint("Radius", 5, 11.7),
    Sketcher.Constraint("Radius", 6, 6.5),
    Sketcher.Constraint("DistanceX", 7, 2, 7, 1, 8.4),
    Sketcher.Constraint("DistanceY", 4, 2, 4, 1, 5.5),
    Sketcher.Constraint("DistanceY", 8, 1, 8, 2, 23.5),
    Sketcher.Constraint("DistanceY", -1, 1, 5, 3, 15.0),
    Sketcher.Constraint("DistanceY", 1, 3, 2, 3, 3.0),
    Sketcher.Constraint("DistanceX", 10, 3, 2, 3, 19.0),
])
sketch9.setExpression("Constraints[25]", "Params.sketch9_radius")
sketch9.setExpression("Constraints[26]", "Params.sketch9_radius2")
sketch9.setExpression("Constraints[27]", "Params.sketch9_radius3")
sketch9.setExpression("Constraints[28]", "Params.sketch9_radius4")
sketch9.setExpression("Constraints[29]", "Params.sketch9_width")
pocket5 = body.newObject("PartDesign::Pocket", "Pocket004")
pocket5.Profile = sketch9
pocket5.setExpression("Length", "Params.pocket5_length")

# Sketch on XY plane
sketch10 = body.newObject("Sketcher::SketchObject", "Sketch009")
sketch10.AttachmentSupport = (doc.getObject("XY_Plane"), [""])
sketch10.MapMode = "FlatFace"
sketch10.AttachmentOffset = App.Placement(App.Vector(0, 0, -4.66), App.Rotation())
sketch10.addGeometry(Part.Circle(App.Vector(5, 2, 0), App.Vector(0, 0, 1), 0.8), False)
sketch10.addConstraint([
    Sketcher.Constraint("Diameter", 0, 1.6),
    Sketcher.Constraint("DistanceX", -1, 1, 0, 3, 5.0),
    Sketcher.Constraint("DistanceY", -1, 1, 0, 3, 2.0),
])
sketch10.setExpression("Constraints[0]", "Params.sketch10_diameter")
pocket6 = body.newObject("PartDesign::Pocket", "Pocket005")
pocket6.Profile = sketch10
pocket6.setExpression("Length", "Params.pocket6_length")
pocket6.Reversed = True

# Sketch on XY plane
sketch11 = body.newObject("Sketcher::SketchObject", "Sketch010")
sketch11.AttachmentSupport = (doc.getObject("XY_Plane"), [""])
sketch11.MapMode = "FlatFace"
sketch11.AttachmentOffset = App.Placement(App.Vector(0, 0, 2.3), App.Rotation())
sketch11.addGeometry(Part.Circle(App.Vector(-3.3, 3.5, 0), App.Vector(0, 0, 1), 1), False)
sketch11.addConstraint([
    Sketcher.Constraint("Diameter", 0, 2.0),
    Sketcher.Constraint("DistanceX", 0, 3, -1, 1, 3.3),
    Sketcher.Constraint("DistanceY", -1, 1, 0, 3, 3.5),
])
sketch11.setExpression("Constraints[0]", "Params.sketch11_diameter")
pocket7 = body.newObject("PartDesign::Pocket", "Pocket006")
pocket7.Profile = sketch11
pocket7.setExpression("Length", "Params.pocket7_length")
pocket7.Reversed = True

# Sketch on XY plane
sketch12 = body.newObject("Sketcher::SketchObject", "Sketch011")
sketch12.AttachmentSupport = (doc.getObject("XY_Plane"), [""])
sketch12.MapMode = "FlatFace"
sketch12.AttachmentOffset = App.Placement(App.Vector(0, 0, 2.3), App.Rotation())
sketch12.addGeometry(Part.Circle(App.Vector(0, 15, 0), App.Vector(0, 0, 1), 3.6), False)
sketch12.addConstraint([
    Sketcher.Constraint("PointOnObject", 0, 3, -2),
    Sketcher.Constraint("Diameter", 0, 7.15),
    Sketcher.Constraint("DistanceY", -1, 1, 0, 3, 15.0),
])
sketch12.setExpression("Constraints[1]", "Params.sketch12_diameter")
pocket8 = body.newObject("PartDesign::Pocket", "Pocket007")
pocket8.Profile = sketch12
pocket8.setExpression("Length", "Params.pocket8_length")
pocket8.Reversed = True

# Sketch on XY plane
sketch13 = body.newObject("Sketcher::SketchObject", "Sketch012")
sketch13.AttachmentSupport = (doc.getObject("XY_Plane"), [""])
sketch13.MapMode = "FlatFace"
sketch13.AttachmentOffset = App.Placement(App.Vector(0, 0, -10.3), App.Rotation())
sketch13.addGeometry([
    Part.LineSegment(App.Vector(-4.4, -20.7, 0), App.Vector(-4.4, -19.2, 0)),  # 0
    Part.LineSegment(App.Vector(-4.4, -19.2, 0), App.Vector(-8.5, -19.2, 0)),  # 1
    Part.ArcOfCircle(Part.Circle(App.Vector(-10.5, -18, 0), App.Vector(0, 0, 1), 2.3), math.radians(-31), math.radians(121)),  # 2
    Part.LineSegment(App.Vector(-11.7, -16, 0), App.Vector(-11.7, 20.5, 0)),  # 3
    Part.ArcOfCircle(Part.Circle(App.Vector(-7, 20.5, 0), App.Vector(0, 0, 1), 4.7), math.radians(159), math.radians(180)),  # 4
    Part.ArcOfCircle(Part.Circle(App.Vector(-9.5, 23.5, 0), App.Vector(0, 0, 1), 2.3), math.radians(-145), math.radians(45)),  # 5
    Part.ArcOfCircle(Part.Circle(App.Vector(-7, 20.5, 0), App.Vector(0, 0, 1), 4.7), math.radians(90), math.radians(100.63)),  # 6
    Part.LineSegment(App.Vector(-7, 25.2, 0), App.Vector(7, 25.2, 0)),  # 7
    Part.ArcOfCircle(Part.Circle(App.Vector(7, 20.5, 0), App.Vector(0, 0, 1), 4.7), math.radians(79.37), math.radians(90)),  # 8
    Part.ArcOfCircle(Part.Circle(App.Vector(9.5, 23.5, 0), App.Vector(0, 0, 1), 2.3), math.radians(135), math.radians(325)),  # 9
    Part.ArcOfCircle(Part.Circle(App.Vector(7, 20.5, 0), App.Vector(0, 0, 1), 4.7), math.radians(0), math.radians(21)),  # 10
    Part.LineSegment(App.Vector(11.7, 20.5, 0), App.Vector(11.7, -16, 0)),  # 11
    Part.ArcOfCircle(Part.Circle(App.Vector(10.5, -18, 0), App.Vector(0, 0, 1), 2.3), math.radians(59), math.radians(211)),  # 12
    Part.LineSegment(App.Vector(8.5, -19.2, 0), App.Vector(4.4, -19.2, 0)),  # 13
    Part.LineSegment(App.Vector(4.4, -19.2, 0), App.Vector(4.4, -20.7, 0)),  # 14
    Part.LineSegment(App.Vector(4.4, -20.7, 0), App.Vector(-4.4, -20.7, 0)),  # 15
], False)
sketch13.addConstraint([
    Sketcher.Constraint("Coincident", 0, 2, 1, 1),
    Sketcher.Constraint("Coincident", 1, 2, 2, 1),
    Sketcher.Constraint("Coincident", 2, 2, 3, 1),
    Sketcher.Constraint("Tangent", 3, 2, 4, 2),
    Sketcher.Constraint("Coincident", 4, 1, 5, 1),
    Sketcher.Constraint("Coincident", 5, 2, 6, 2),
    Sketcher.Constraint("Tangent", 6, 1, 7, 1),
    Sketcher.Constraint("Tangent", 7, 2, 8, 2),
    Sketcher.Constraint("Coincident", 8, 1, 9, 1),
    Sketcher.Constraint("Coincident", 9, 2, 10, 2),
    Sketcher.Constraint("Tangent", 10, 1, 11, 1),
    Sketcher.Constraint("Coincident", 11, 2, 12, 1),
    Sketcher.Constraint("Coincident", 12, 2, 13, 1),
    Sketcher.Constraint("Coincident", 13, 2, 14, 1),
    Sketcher.Constraint("Coincident", 14, 2, 15, 1),
    Sketcher.Constraint("Coincident", 15, 2, 0, 1),
    Sketcher.Constraint("Vertical", 0),
    Sketcher.Constraint("Horizontal", 1),
    Sketcher.Constraint("Vertical", 3),
    Sketcher.Constraint("Horizontal", 7),
    Sketcher.Constraint("Vertical", 11),
    Sketcher.Constraint("Horizontal", 13),
    Sketcher.Constraint("Vertical", 14),
    Sketcher.Constraint("Horizontal", 15),
    Sketcher.Constraint("Coincident", 6, 3, 4, 3),
    Sketcher.Constraint("Coincident", 10, 3, 8, 3),
    Sketcher.Constraint("Equal", 2, 5),
    Sketcher.Constraint("Equal", 4, 6),
    Sketcher.Constraint("Equal", 6, 8),
    Sketcher.Constraint("Equal", 5, 9),
    Sketcher.Constraint("Equal", 8, 10),
    Sketcher.Constraint("Equal", 9, 12),
    Sketcher.Constraint("Symmetric", 5, 3, 9, 3, -2),
    Sketcher.Constraint("Symmetric", 2, 3, 12, 3, -2),
    Sketcher.Constraint("Symmetric", 0, 2, 13, 2, -2),
    Sketcher.Constraint("Horizontal", 5, 2, 8, 1),
    Sketcher.Constraint("Radius", 2, 2.3),
    Sketcher.Constraint("Radius", 4, 4.7),
    Sketcher.Constraint("DistanceX", 7, 1, 7, 2, 14.0),
    Sketcher.Constraint("DistanceY", 0, 1, 0, 2, 1.5),
    Sketcher.Constraint("DistanceY", 2, 3, -1, 1, 18.0),
    Sketcher.Constraint("DistanceY", 4, 3, 5, 3, 3.0),
    Sketcher.Constraint("DistanceX", 2, 3, 5, 3, 1.0),
    Sketcher.Constraint("DistanceX", 5, 3, 9, 3, 19.0),
    Sketcher.Constraint("DistanceX", 15, 2, 15, 1, 8.82),
    Sketcher.Constraint("DistanceY", -1, 1, 4, 3, 20.5),
    Sketcher.Constraint("DistanceY", 0, 2, -1, 1, 19.2),
])
sketch13.setExpression("Constraints[36]", "Params.sketch13_radius")
sketch13.setExpression("Constraints[37]", "Params.sketch13_radius2")
sketch13.setExpression("Constraints[38]", "Params.sketch13_width")
sketch13.setExpression("Constraints[39]", "Params.sketch13_height")
sketch13.setExpression("Constraints[44]", "Params.sketch13_width2")
pocket9 = body.newObject("PartDesign::Pocket", "Pocket008")
pocket9.Profile = sketch13
pocket9.setExpression("Length", "Params.pocket9_length")

# Sketch on XY plane
sketch14 = body.newObject("Sketcher::SketchObject", "Sketch013")
sketch14.AttachmentSupport = (doc.getObject("XY_Plane"), [""])
sketch14.MapMode = "FlatFace"
sketch14.AttachmentOffset = App.Placement(App.Vector(0, 0, -10.3), App.Rotation())
sketch14.addGeometry([
    Part.LineSegment(App.Vector(4.5, -20.6, 0), App.Vector(-4.5, -20.6, 0)),  # 0
    Part.ArcOfCircle(Part.Circle(App.Vector(0, -12.1, 0), App.Vector(0, 0, 1), 9.6), math.radians(108), math.radians(242)),  # 1
    Part.ArcOfCircle(Part.Circle(App.Vector(-3.3, 3.5, 0), App.Vector(0, 0, 1), 6.5), math.radians(-88), math.radians(-64)),  # 2
    Part.ArcOfCircle(Part.Circle(App.Vector(5, 2, 0), App.Vector(0, 0, 1), 7), math.radians(-142), math.radians(-90)),  # 3
    Part.LineSegment(App.Vector(5, -5, 0), App.Vector(6.5, -5, 0)),  # 4
    Part.ArcOfCircle(Part.Circle(App.Vector(0, -12.1, 0), App.Vector(0, 0, 1), 9.6), math.radians(-62), math.radians(48)),  # 5
], False)
sketch14.addConstraint([
    Sketcher.Constraint("Coincident", 0, 2, 1, 2),
    Sketcher.Constraint("Coincident", 1, 1, 2, 1),
    Sketcher.Constraint("Coincident", 2, 2, 3, 1),
    Sketcher.Constraint("Tangent", 3, 2, 4, 1),
    Sketcher.Constraint("Coincident", 4, 2, 5, 2),
    Sketcher.Constraint("Coincident", 5, 1, 0, 1),
    Sketcher.Constraint("Horizontal", 0),
    Sketcher.Constraint("Horizontal", 4),
    Sketcher.Constraint("Coincident", 5, 3, 1, 3),
    Sketcher.Constraint("Equal", 1, 5),
    Sketcher.Constraint("PointOnObject", 1, 3, -2),
    Sketcher.Constraint("Radius", 3, 7.0),
    Sketcher.Constraint("Radius", 1, 9.6),
    Sketcher.Constraint("Radius", 2, 6.5),
    Sketcher.Constraint("DistanceX", -1, 1, 3, 3, 5.0),
    Sketcher.Constraint("DistanceY", -1, 1, 3, 3, 2.0),
    Sketcher.Constraint("DistanceY", 1, 3, -1, 1, 12.1),
    Sketcher.Constraint("DistanceX", 2, 3, -1, 1, 3.3),
    Sketcher.Constraint("DistanceY", -1, 1, 2, 3, 3.5),
    Sketcher.Constraint("DistanceY", 0, 2, -1, 1, 20.6),
])
sketch14.setExpression("Constraints[11]", "Params.sketch14_radius")
sketch14.setExpression("Constraints[12]", "Params.sketch14_radius2")
sketch14.setExpression("Constraints[13]", "Params.sketch14_radius3")
pad5 = body.newObject("PartDesign::Pad", "Pad004")
pad5.Profile = sketch14
pad5.setExpression("Length", "Params.pad5_length")
pad5.Reversed = True

# Sketch on XY plane
sketch15 = body.newObject("Sketcher::SketchObject", "Sketch014")
sketch15.AttachmentSupport = (doc.getObject("XY_Plane"), [""])
sketch15.MapMode = "FlatFace"
sketch15.AttachmentOffset = App.Placement(App.Vector(0, 0, -12.3), App.Rotation())
sketch15.addGeometry(Part.Circle(App.Vector(0, -12.1, 0), App.Vector(0, 0, 1), 0.8), False)
sketch15.addConstraint([
    Sketcher.Constraint("PointOnObject", 0, 3, -2),
    Sketcher.Constraint("Diameter", 0, 1.5),
    Sketcher.Constraint("DistanceY", 0, 3, -1, 1, 12.1),
])
sketch15.setExpression("Constraints[1]", "Params.sketch15_diameter")
pad6 = body.newObject("PartDesign::Pad", "Pad005")
pad6.Profile = sketch15
pad6.setExpression("Length", "Params.pad6_length")
pad6.Reversed = True

# Sketch on XY plane
sketch16 = body.newObject("Sketcher::SketchObject", "Sketch015")
sketch16.AttachmentSupport = (doc.getObject("XY_Plane"), [""])
sketch16.MapMode = "FlatFace"
sketch16.AttachmentOffset = App.Placement(App.Vector(0, 0, -17.3), App.Rotation())
add_polygon(sketch16, [(0, -10.5), (0.4, -10.9), (0.9, -10.7), (0.9, -11.3), (1.5, -11.4), (1.2, -11.9), (1.6, -12.3), (1.1, -12.6), (1.2, -13.2), (0.7, -13.2), (0.5, -13.7), (0, -13.3), (-0.5, -13.7), (-0.7, -13.2), (-1.2, -13.2), (-1.1, -12.6), (-1.6, -12.3), (-1.2, -11.9), (-1.5, -11.4), (-0.9, -11.3), (-0.9, -10.7), (-0.4, -10.9)])  # lines 0-21
sketch16.addConstraint([
    Sketcher.Constraint("Symmetric", 9, 2, 11, 2, -2),
    Sketcher.Constraint("Symmetric", 8, 2, 12, 2, -2),
    Sketcher.Constraint("Symmetric", 7, 2, 13, 2, -2),
    Sketcher.Constraint("Symmetric", 6, 2, 14, 2, -2),
    Sketcher.Constraint("Symmetric", 5, 2, 15, 2, -2),
    Sketcher.Constraint("Symmetric", 4, 2, 16, 2, -2),
    Sketcher.Constraint("Symmetric", 3, 2, 17, 2, -2),
    Sketcher.Constraint("Symmetric", 2, 2, 18, 2, -2),
    Sketcher.Constraint("Symmetric", 1, 2, 19, 2, -2),
    Sketcher.Constraint("Symmetric", 0, 2, 20, 2, -2),
    Sketcher.Constraint("PointOnObject", 10, 2, -2),
    Sketcher.Constraint("PointOnObject", 21, 2, -2),
    Sketcher.Constraint("Equal", 0, 1),
    Sketcher.Constraint("Equal", 1, 2),
    Sketcher.Constraint("Equal", 2, 3),
    Sketcher.Constraint("Equal", 3, 4),
    Sketcher.Constraint("Equal", 4, 5),
    Sketcher.Constraint("Equal", 5, 6),
    Sketcher.Constraint("Equal", 6, 7),
    Sketcher.Constraint("Equal", 7, 8),
    Sketcher.Constraint("Equal", 8, 9),
    Sketcher.Constraint("Equal", 9, 10),
    Sketcher.Constraint("DistanceY", 10, 2, -1, 1, 13.35),
    Sketcher.Constraint("DistanceY", 21, 2, -1, 1, 10.475),
    Sketcher.Constraint("DistanceX", -1, 1, 8, 2, 0.675801),
    Sketcher.Constraint("DistanceY", 5, 2, 1, 2, 1.598299),
    Sketcher.Constraint("DistanceY", 7, 2, 3, 2, 1.739198),
    Sketcher.Constraint("DistanceY", 8, 2, 6, 2, 0.532298),
    Sketcher.Constraint("DistanceX", -1, 1, 1, 2, 0.878541),
    Sketcher.Constraint("DistanceX", -1, 1, 3, 2, 1.478152),
    Sketcher.Constraint("DistanceY", 3, 2, -1, 1, 11.424951),
    Sketcher.Constraint("DistanceX", -1, 1, 5, 2, 1.60846),
    Sketcher.Constraint("DistanceY", 5, 2, -1, 1, 12.331262),
    Sketcher.Constraint("DistanceX", -1, 1, 6, 2, 1.13704),
])
pad7 = body.newObject("PartDesign::Pad", "Pad006")
pad7.Profile = sketch16
pad7.setExpression("Length", "Params.pad7_length")

# Sketch on XY plane
sketch17 = body.newObject("Sketcher::SketchObject", "Sketch016")
sketch17.AttachmentSupport = (doc.getObject("XY_Plane"), [""])
sketch17.MapMode = "FlatFace"
sketch17.AttachmentOffset = App.Placement(App.Vector(0, 0, -12.3), App.Rotation())
sketch17.addGeometry(Part.Circle(App.Vector(-0.8, -4.7, 0), App.Vector(0, 0, 1), 0.8), False)
sketch17.addConstraint([
    Sketcher.Constraint("Diameter", 0, 1.6),
    Sketcher.Constraint("DistanceX", 0, 3, -1, 1, 0.8),
    Sketcher.Constraint("DistanceY", 0, 3, -1, 1, 4.7),
])
sketch17.setExpression("Constraints[0]", "Params.sketch17_diameter")
pocket10 = body.newObject("PartDesign::Pocket", "Pocket009")
pocket10.Profile = sketch17
pocket10.setExpression("Length", "Params.pocket10_length")
pocket10.Reversed = True

# Sketch on XY plane
sketch18 = body.newObject("Sketcher::SketchObject", "Sketch017")
sketch18.AttachmentSupport = (doc.getObject("XY_Plane"), [""])
sketch18.MapMode = "FlatFace"
sketch18.AttachmentOffset = App.Placement(App.Vector(0, 0, -0.7), App.Rotation())
sketch18.addGeometry([
    Part.Circle(App.Vector(0, 15, 0), App.Vector(0, 0, 1), 5.6),
    Part.Circle(App.Vector(0, 15, 0), App.Vector(0, 0, 1), 3.6),
], False)
sketch18.addConstraint([
    Sketcher.Constraint("Coincident", 1, 3, 0, 3),
    Sketcher.Constraint("PointOnObject", 0, 3, -2),
    Sketcher.Constraint("Diameter", 0, 11.2),
    Sketcher.Constraint("Diameter", 1, 7.15),
    Sketcher.Constraint("DistanceY", -1, 1, 0, 3, 15.0),
])
sketch18.setExpression("Constraints[2]", "Params.sketch18_diameter")
sketch18.setExpression("Constraints[3]", "Params.sketch18_diameter2")
pad8 = body.newObject("PartDesign::Pad", "Pad007")
pad8.Profile = sketch18
pad8.setExpression("Length", "Params.pad8_length")

doc.recompute()
